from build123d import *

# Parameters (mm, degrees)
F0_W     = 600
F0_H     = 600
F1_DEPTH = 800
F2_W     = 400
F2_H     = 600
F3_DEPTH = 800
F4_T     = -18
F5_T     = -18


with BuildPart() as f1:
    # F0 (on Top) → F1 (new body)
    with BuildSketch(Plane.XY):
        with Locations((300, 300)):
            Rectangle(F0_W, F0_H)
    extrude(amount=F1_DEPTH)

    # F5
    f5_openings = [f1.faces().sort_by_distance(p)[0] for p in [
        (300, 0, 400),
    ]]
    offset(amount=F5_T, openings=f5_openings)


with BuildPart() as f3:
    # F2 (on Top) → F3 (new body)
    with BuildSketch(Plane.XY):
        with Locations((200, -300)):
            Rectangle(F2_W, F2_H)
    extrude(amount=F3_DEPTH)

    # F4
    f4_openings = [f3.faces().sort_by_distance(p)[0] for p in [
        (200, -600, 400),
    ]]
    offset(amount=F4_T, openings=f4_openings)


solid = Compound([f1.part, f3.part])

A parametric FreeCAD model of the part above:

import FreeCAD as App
import Part
import Sketcher
from FreeCAD import Vector


def faces_at(feature, points):
    """Names of the faces that lie closest to the given points."""
    faces = feature.Shape.Faces
    near = lambda p: min(range(len(faces)), key=lambda i: faces[i].distToShape(Part.Vertex(*p))[0])
    return sorted({f"Face{near(p) + 1}" for p in points})


def add_polygon(sketch, points):
    """Adds a closed chain of lines whose ends are joined by coincident constraints."""
    first, n = sketch.GeometryCount, len(points)
    for a, b in zip(points, points[1:] + points[:1]):
        sketch.addGeometry(Part.LineSegment(App.Vector(*a, 0), App.Vector(*b, 0)), False)
    for i in range(n):
        sketch.addConstraint(Sketcher.Constraint("Coincident", first + i, 2, first + (i + 1) % n, 1))

doc = App.newDocument("Part")
body = doc.addObject("PartDesign::Body", "Body")

# Sketch on XY plane
sketch1 = body.newObject("Sketcher::SketchObject", "Sketch")
sketch1.AttachmentSupport = (doc.getObject("XY_Plane"), [""])
sketch1.MapMode = "FlatFace"
add_polygon(sketch1, [(0, 600), (0, 0), (600, 0), (600, 600)])  # lines 0-3
sketch1.addConstraint([
    Sketcher.Constraint("Vertical", 0),
    Sketcher.Constraint("Horizontal", 1),
    Sketcher.Constraint("Vertical", 2),
    Sketcher.Constraint("Horizontal", 3),
    Sketcher.Constraint("Coincident", 0, 2, -1, 1),
    Sketcher.Constraint("Equal", 3, 0),
    Sketcher.Constraint("DistanceX", 1, 1, 1, 2, 600.0),
])
pad1 = body.newObject("PartDesign::Pad", "Pad")
pad1.Profile = sketch1
pad1.Length = 800
doc.recompute()

thickness = body.newObject("PartDesign::Thickness", "Thickness")
thickness.Base = (pad1, faces_at(pad1, [(300, 0, 400)]))
thickness.Value = 18
thickness.Reversed = True
thickness.Join = "Arc"
body2 = doc.addObject("PartDesign::Body", "Body001")

# Sketch on XY plane
sketch2 = body2.newObject("Sketcher::SketchObject", "Sketch001")
sketch2.AttachmentSupport = (doc.getObject("XY_Plane001"), [""])
sketch2.MapMode = "FlatFace"
add_polygon(sketch2, [(0, 0), (0, -600), (400, -600), (400, 0)])  # lines 0-3
sketch2.addConstraint([
    Sketcher.Constraint("Vertical", 0),
    Sketcher.Constraint("Horizontal", 1),
    Sketcher.Constraint("Vertical", 2),
    Sketcher.Constraint("Horizontal", 3),
    Sketcher.Constraint("Coincident", 3, 2, -1, 1),
    Sketcher.Constraint("DistanceX", 1, 1, 1, 2, 400.0),
    Sketcher.Constraint("DistanceY", 0, 2, 0, 1, 600.0),
])
pad2 = body2.newObject("PartDesign::Pad", "Pad001")
pad2.Profile = sketch2
pad2.Length = 800
doc.recompute()

thickness2 = body2.newObject("PartDesign::Thickness", "Thickness001")
thickness2.Base = (pad2, faces_at(pad2, [(200, -600, 400)]))
thickness2.Value = 18
thickness2.Reversed = True
thickness2.Join = "Arc"

doc.recompute()
